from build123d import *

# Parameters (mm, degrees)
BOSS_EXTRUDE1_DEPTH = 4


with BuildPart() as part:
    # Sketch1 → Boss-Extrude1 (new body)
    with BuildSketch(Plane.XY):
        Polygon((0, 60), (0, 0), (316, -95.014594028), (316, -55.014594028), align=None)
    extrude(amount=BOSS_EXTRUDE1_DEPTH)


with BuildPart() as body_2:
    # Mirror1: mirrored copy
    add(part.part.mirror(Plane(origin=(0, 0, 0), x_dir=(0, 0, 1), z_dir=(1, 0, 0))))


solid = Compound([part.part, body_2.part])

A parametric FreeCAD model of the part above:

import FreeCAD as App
import Part
import Sketcher
Q = App.Units.Quantity

doc = App.newDocument("Part")
body = doc.addObject("PartDesign::Body", "Body")

# Sketch on XY plane
sketch1 = body.newObject("Sketcher::SketchObject", "Sketch")
sketch1.AttachmentSupport = (doc.getObject("XY_Plane"), [""])
sketch1.MapMode = "FlatFace"
sketch1.addGeometry([
    Part.LineSegment(App.Vector(0, 60, 0), App.Vector(0, 0, 0)),
    Part.LineSegment(App.Vector(0, 0, 0), App.Vector(316, -95.014594, 0)),
    Part.LineSegment(App.Vector(316, -95.014594, 0), App.Vector(316, -55.014594, 0)),
    Part.LineSegment(App.Vector(316, -55.014594, 0), App.Vector(0, 60, 0)),
], False)
sketch1.addConstraint([
    Sketcher.Constraint("Coincident", 0, 2, 1, 1),
    Sketcher.Constraint("Coincident", 1, 2, 2, 1),
    Sketcher.Constraint("Coincident", 2, 2, 3, 1),
    Sketcher.Constraint("Coincident", 3, 2, 0, 1),
    Sketcher.Constraint("Vertical", 0),
    Sketcher.Constraint("Vertical", 2),
    Sketcher.Constraint("Coincident", 0, 2, -1, 1),
    Sketcher.Constraint("DistanceY", 0, 2, 0, 1, 60.0),
    Sketcher.Constraint("DistanceY", 2, 1, 2, 2, 40.0),
    Sketcher.Constraint("Angle", 3, Q("160 deg")),
    Sketcher.Constraint("DistanceX", -1, 1, 1, 2, 316.0),
])
pad1 = body.newObject("PartDesign::Pad", "Pad")
pad1.Profile = sketch1
pad1.Length = 4
body2 = doc.addObject("PartDesign::Body", "Body001")
doc.recompute()

mirroring = doc.addObject("Part::Mirroring", "Mirroring")
mirroring.Source = body
mirroring.Base = App.Vector(0, 0, 0)
mirroring.Normal = App.Vector(1, 0, 0)
body2.BaseFeature = mirroring
doc.recompute()
mirroring.Visibility = False

doc.recompute()
